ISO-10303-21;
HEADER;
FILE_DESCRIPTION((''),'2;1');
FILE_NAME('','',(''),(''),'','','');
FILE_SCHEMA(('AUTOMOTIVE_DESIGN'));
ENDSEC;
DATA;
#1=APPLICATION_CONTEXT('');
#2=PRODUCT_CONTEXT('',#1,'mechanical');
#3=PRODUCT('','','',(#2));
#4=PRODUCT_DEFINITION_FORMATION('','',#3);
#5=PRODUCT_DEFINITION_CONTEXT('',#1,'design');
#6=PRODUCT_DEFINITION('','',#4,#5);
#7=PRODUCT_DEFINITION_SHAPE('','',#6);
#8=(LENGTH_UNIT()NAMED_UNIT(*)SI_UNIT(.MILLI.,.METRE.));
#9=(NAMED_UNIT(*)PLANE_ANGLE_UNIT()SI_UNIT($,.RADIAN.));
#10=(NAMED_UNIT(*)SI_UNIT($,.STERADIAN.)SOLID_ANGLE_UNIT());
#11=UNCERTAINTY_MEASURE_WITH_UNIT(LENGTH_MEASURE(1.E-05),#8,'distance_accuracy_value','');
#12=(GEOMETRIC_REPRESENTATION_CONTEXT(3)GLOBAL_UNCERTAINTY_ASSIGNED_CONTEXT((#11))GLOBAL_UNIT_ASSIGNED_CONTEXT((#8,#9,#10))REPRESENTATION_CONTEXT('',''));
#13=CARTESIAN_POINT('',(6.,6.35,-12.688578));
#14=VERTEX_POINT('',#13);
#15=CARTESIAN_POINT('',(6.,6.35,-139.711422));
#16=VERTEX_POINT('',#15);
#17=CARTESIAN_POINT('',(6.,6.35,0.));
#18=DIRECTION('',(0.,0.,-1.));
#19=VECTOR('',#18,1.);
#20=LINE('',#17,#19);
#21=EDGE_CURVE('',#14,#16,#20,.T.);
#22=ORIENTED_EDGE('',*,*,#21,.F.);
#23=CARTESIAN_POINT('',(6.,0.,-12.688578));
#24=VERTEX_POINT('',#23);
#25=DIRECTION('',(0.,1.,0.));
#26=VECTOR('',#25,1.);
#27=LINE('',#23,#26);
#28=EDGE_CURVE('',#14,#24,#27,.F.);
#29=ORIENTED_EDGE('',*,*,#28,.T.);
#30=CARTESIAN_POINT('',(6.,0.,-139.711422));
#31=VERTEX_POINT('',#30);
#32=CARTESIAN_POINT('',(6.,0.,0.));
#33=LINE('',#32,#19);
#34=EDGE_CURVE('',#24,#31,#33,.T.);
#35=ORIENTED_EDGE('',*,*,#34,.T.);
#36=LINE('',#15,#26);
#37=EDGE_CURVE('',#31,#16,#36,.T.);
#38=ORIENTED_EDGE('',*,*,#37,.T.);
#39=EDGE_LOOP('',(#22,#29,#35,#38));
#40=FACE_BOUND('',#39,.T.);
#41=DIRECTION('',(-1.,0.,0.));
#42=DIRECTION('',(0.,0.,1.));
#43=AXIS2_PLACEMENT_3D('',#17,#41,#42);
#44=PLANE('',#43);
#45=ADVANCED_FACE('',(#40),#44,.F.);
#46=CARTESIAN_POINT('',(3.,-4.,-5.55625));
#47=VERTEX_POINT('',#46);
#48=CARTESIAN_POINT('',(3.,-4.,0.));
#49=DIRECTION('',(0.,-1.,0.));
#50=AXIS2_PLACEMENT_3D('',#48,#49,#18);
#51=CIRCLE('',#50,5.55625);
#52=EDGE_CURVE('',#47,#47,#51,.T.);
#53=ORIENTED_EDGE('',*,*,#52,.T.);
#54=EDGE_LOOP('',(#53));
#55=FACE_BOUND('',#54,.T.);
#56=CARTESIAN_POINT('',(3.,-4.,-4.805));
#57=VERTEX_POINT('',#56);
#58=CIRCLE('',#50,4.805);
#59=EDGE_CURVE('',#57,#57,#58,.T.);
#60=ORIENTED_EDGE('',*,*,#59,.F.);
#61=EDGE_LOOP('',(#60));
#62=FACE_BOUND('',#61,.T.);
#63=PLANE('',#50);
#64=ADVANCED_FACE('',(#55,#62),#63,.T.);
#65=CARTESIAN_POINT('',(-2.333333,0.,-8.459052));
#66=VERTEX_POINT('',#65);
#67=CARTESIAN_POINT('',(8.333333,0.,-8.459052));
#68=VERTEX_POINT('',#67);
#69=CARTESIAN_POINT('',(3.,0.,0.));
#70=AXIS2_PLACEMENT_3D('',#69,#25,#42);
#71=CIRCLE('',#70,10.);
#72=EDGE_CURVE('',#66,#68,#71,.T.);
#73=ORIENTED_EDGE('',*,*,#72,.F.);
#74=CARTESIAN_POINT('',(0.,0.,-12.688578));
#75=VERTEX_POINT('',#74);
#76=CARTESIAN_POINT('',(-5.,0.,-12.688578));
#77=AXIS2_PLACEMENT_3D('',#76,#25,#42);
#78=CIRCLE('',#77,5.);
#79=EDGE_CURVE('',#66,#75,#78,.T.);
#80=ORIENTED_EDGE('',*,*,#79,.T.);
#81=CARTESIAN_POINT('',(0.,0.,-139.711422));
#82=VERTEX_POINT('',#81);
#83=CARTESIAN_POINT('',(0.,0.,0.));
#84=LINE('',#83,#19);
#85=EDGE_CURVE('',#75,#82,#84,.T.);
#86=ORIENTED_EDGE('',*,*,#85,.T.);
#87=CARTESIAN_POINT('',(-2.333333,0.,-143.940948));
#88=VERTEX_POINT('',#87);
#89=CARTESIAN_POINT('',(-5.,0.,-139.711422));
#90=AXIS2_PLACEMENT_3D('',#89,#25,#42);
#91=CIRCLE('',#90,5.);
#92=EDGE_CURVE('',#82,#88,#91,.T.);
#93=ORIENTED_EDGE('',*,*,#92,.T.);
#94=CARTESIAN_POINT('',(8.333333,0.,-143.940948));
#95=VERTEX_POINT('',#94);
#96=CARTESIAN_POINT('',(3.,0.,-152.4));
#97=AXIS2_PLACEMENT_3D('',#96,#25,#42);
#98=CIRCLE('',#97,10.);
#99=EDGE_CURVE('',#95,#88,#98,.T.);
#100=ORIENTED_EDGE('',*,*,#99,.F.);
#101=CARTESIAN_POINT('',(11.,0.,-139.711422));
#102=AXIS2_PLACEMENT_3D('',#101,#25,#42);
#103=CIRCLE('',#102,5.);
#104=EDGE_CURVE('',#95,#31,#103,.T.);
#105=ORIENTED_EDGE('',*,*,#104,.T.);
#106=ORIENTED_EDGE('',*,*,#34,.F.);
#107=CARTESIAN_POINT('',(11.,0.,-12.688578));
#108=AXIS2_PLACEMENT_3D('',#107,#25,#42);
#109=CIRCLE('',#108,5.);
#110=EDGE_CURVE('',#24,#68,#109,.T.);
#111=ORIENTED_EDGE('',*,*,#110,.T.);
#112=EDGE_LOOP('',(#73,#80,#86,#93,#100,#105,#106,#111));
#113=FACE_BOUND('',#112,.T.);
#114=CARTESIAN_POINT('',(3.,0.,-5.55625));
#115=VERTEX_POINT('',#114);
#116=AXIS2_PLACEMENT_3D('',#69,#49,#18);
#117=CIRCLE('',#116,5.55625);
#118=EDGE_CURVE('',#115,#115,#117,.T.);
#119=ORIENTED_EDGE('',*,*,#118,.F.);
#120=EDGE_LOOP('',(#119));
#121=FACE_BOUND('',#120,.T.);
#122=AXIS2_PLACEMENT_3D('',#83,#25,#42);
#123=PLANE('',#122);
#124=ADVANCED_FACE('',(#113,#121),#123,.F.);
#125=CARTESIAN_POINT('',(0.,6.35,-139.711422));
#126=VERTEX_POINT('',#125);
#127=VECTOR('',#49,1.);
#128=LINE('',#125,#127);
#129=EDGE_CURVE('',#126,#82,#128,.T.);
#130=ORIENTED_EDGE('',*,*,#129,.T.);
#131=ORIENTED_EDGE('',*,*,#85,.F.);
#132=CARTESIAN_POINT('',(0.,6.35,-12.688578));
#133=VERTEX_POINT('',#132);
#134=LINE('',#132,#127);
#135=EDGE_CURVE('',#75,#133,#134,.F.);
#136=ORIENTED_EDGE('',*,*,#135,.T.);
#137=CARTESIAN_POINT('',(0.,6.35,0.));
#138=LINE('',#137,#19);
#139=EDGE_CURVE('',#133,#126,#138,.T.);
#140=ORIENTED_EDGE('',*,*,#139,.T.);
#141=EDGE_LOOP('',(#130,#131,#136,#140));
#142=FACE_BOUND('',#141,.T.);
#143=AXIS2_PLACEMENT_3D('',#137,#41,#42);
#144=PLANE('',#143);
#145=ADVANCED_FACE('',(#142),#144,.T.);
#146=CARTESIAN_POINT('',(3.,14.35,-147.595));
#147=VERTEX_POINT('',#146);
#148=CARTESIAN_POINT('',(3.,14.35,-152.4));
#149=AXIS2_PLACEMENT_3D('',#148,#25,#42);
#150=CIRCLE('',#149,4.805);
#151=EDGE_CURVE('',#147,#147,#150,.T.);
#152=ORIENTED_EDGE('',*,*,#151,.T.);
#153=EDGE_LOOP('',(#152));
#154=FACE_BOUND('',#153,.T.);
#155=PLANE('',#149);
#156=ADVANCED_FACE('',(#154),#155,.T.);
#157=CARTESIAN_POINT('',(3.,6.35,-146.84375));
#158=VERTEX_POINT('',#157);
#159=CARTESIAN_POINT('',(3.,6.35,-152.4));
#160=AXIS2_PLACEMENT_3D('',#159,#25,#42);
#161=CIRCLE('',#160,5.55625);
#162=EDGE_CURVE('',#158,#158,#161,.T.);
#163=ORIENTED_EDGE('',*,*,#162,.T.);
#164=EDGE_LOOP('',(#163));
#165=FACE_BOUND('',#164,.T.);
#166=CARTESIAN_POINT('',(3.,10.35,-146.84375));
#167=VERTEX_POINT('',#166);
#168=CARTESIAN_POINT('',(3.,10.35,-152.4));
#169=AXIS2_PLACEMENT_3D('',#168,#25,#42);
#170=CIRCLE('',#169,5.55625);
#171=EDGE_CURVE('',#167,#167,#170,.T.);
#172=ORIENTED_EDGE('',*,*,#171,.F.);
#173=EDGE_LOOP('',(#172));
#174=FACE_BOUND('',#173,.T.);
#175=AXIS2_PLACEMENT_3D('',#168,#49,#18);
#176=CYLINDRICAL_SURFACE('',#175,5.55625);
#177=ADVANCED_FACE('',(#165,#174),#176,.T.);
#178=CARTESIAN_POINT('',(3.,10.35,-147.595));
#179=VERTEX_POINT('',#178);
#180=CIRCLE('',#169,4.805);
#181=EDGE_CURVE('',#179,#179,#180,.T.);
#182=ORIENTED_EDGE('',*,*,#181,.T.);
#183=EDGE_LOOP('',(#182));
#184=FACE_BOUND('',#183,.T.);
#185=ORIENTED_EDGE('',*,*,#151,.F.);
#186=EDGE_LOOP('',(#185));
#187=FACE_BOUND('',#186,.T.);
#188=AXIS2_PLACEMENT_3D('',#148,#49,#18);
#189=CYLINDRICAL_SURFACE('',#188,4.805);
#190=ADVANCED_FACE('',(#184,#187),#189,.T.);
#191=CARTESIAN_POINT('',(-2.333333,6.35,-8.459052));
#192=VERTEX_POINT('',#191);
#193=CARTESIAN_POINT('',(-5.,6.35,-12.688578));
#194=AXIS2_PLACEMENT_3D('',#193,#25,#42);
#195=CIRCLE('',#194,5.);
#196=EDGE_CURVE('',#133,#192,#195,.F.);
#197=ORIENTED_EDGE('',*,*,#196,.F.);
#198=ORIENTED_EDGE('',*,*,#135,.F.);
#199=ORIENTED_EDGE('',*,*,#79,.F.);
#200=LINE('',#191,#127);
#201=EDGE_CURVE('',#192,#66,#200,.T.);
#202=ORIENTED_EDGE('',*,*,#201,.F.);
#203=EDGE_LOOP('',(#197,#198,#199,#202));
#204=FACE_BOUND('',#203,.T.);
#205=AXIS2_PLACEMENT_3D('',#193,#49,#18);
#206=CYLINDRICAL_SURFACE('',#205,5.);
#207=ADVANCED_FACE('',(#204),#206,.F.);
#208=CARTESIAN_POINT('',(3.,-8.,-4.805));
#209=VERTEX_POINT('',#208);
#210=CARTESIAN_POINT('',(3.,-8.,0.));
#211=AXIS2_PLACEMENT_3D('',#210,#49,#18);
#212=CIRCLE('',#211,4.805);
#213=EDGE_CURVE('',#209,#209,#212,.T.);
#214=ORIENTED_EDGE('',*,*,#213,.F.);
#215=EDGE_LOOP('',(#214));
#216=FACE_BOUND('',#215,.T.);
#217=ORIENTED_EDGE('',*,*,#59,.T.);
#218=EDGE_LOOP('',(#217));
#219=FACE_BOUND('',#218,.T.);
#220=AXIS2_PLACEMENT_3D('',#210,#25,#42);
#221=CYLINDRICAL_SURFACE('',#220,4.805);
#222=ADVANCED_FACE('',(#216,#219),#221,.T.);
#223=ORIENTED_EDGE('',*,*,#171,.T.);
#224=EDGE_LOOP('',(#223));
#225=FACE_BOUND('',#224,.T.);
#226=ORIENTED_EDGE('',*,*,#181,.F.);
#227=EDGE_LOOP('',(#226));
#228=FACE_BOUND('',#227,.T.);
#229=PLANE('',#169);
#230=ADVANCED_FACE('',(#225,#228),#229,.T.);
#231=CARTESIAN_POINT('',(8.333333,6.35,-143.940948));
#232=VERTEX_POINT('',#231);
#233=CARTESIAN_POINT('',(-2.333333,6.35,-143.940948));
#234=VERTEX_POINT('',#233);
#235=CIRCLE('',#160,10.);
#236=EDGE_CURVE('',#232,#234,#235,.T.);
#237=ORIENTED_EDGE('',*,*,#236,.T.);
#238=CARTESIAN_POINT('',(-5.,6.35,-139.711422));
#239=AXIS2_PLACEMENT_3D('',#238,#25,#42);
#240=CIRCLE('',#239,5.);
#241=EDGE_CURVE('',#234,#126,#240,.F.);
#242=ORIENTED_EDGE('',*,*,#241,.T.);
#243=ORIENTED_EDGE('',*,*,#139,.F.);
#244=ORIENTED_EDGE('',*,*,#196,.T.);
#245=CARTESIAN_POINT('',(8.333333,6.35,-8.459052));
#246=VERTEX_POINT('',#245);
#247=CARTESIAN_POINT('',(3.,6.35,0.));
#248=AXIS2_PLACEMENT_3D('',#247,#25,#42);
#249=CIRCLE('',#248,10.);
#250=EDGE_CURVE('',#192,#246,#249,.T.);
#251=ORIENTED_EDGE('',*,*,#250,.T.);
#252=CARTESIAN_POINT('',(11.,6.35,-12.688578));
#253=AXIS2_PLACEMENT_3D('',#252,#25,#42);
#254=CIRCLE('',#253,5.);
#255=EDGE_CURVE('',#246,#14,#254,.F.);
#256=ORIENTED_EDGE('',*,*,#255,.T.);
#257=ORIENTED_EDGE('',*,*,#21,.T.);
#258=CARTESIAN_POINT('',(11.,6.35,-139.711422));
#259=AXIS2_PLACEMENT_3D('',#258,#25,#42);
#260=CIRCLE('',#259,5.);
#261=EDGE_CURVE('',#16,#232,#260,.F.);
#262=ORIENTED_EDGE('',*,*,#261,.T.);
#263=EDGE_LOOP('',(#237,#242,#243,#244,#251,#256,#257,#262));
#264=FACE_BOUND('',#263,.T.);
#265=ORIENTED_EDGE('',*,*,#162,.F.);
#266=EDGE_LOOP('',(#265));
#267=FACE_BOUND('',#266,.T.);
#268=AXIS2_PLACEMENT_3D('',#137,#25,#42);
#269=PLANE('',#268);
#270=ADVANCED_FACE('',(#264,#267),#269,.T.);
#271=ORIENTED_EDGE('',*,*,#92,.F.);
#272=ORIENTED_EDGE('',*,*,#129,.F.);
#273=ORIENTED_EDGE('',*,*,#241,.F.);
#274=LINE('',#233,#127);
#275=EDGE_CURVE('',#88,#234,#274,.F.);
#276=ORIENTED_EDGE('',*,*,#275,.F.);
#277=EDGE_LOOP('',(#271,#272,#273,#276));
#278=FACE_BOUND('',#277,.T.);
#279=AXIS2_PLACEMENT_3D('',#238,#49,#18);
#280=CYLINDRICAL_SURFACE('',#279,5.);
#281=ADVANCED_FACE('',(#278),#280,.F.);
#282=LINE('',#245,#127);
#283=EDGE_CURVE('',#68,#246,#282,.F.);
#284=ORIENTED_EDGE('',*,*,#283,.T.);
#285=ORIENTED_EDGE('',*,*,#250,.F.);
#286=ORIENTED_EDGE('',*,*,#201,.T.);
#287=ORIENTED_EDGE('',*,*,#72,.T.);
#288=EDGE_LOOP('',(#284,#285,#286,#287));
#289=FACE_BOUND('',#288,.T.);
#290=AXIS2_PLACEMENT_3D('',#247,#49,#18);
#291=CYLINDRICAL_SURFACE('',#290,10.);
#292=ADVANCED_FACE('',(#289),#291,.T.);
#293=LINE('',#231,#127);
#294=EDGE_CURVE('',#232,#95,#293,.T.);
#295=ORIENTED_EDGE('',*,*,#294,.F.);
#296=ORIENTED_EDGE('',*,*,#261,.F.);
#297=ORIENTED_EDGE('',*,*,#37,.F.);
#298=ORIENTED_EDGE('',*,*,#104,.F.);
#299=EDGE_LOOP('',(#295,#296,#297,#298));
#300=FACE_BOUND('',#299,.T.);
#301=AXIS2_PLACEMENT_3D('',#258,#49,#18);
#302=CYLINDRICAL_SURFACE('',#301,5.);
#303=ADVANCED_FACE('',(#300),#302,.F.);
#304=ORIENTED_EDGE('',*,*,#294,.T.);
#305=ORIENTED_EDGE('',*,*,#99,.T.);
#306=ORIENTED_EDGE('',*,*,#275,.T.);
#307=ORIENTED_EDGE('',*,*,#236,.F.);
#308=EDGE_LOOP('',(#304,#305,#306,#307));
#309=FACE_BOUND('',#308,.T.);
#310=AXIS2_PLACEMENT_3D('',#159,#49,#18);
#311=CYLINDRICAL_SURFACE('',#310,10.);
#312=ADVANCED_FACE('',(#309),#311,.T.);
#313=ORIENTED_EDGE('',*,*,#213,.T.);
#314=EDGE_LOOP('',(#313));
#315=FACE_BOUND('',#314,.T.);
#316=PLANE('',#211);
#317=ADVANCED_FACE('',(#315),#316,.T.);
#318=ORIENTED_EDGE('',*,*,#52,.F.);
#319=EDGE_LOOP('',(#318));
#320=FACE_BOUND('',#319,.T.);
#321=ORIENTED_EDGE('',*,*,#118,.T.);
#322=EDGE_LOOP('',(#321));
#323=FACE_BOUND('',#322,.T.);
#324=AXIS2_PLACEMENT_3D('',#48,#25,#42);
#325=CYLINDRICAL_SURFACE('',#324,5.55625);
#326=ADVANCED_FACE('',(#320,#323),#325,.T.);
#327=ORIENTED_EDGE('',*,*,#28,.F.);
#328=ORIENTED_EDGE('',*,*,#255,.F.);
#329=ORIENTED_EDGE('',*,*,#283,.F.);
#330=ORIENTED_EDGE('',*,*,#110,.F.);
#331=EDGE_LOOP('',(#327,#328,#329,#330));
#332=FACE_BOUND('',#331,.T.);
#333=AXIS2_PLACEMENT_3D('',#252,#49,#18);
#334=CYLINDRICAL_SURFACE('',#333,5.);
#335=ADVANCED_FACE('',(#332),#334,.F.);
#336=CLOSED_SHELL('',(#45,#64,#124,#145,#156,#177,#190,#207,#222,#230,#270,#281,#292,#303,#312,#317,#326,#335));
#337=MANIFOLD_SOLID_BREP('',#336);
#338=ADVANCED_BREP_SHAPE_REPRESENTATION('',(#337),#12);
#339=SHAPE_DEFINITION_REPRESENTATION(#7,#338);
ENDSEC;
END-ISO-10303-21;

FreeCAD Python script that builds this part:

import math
import FreeCAD as App
import Part
import Sketcher

V = App.Vector


def edges_at(feature, points):
    """Names of the edges that pass closest to the given points."""
    edges = feature.Shape.Edges
    near = lambda p: min(range(len(edges)), key=lambda i: edges[i].distToShape(Part.Vertex(*p))[0])
    return sorted({f"Edge{near(p) + 1}" for p in points})

doc = App.newDocument("Part")
body = doc.addObject("PartDesign::Body", "Body")

# Sketch on XZ plane
sketch1 = doc.addObject("Sketcher::SketchObject", "Sketch")
body.addObject(sketch1)
sketch1.AttachmentSupport = (doc.XZ_Plane, [""])
sketch1.MapMode = "FlatFace"
sketch1.addGeometry(Part.LineSegment(V(6, -10, 0), V(6, -143, 0)), False)
sketch1.addGeometry(Part.ArcOfCircle(Part.Circle(V(3, -152, 0), V(0, 0, 1), 10), math.radians(0), math.radians(73)), False)
sketch1.addGeometry(Part.ArcOfCircle(Part.Circle(V(3, -152, 0), V(0, 0, 1), 10), math.radians(107), math.radians(360)), False)
sketch1.addGeometry(Part.LineSegment(V(0, -143, 0), V(0, -10, 0)), False)
sketch1.addGeometry(Part.ArcOfCircle(Part.Circle(V(3, 0, 0), V(0, 0, 1), 10), math.radians(0), math.radians(253)), False)
sketch1.addGeometry(Part.ArcOfCircle(Part.Circle(V(3, 0, 0), V(0, 0, 1), 10), math.radians(-73), math.radians(0)), False)
sketch1.addConstraint(Sketcher.Constraint("Coincident", 0, 2, 1, 2))
sketch1.addConstraint(Sketcher.Constraint("Tangent", 1, 1, 2, 2))
sketch1.addConstraint(Sketcher.Constraint("Coincident", 2, 1, 3, 1))
sketch1.addConstraint(Sketcher.Constraint("Coincident", 3, 2, 4, 2))
sketch1.addConstraint(Sketcher.Constraint("Tangent", 4, 1, 5, 2))
sketch1.addConstraint(Sketcher.Constraint("Coincident", 5, 1, 0, 1))
sketch1.addConstraint(Sketcher.Constraint("Vertical", 0))
sketch1.addConstraint(Sketcher.Constraint("Vertical", 3))
sketch1.addConstraint(Sketcher.Constraint("Equal", 1, 2))
sketch1.addConstraint(Sketcher.Constraint("Equal", 2, 4))
sketch1.addConstraint(Sketcher.Constraint("Equal", 4, 5))
sketch1.addConstraint(Sketcher.Constraint("PointOnObject", 4, 3, -1))
sketch1.addConstraint(Sketcher.Constraint("PointOnObject", 2, 1, -2))
sketch1.addConstraint(Sketcher.Constraint("PointOnObject", 4, 1, -1))
sketch1.addConstraint(Sketcher.Constraint("Horizontal", 2, 3, 1, 1))
sketch1.addConstraint(Sketcher.Constraint("Horizontal", 0, 2, 2, 1))
sketch1.addConstraint(Sketcher.Constraint("Horizontal", 3, 2, 5, 1))
sketch1.addConstraint(Sketcher.Constraint("Radius", 1, 10.0))
sketch1.addConstraint(Sketcher.Constraint("DistanceX", -1, 1, 1, 3, 3.0))
sketch1.addConstraint(Sketcher.Constraint("DistanceY", 1, 3, -1, 1, 152.4))
pad1 = doc.addObject("PartDesign::Pad", "Pad")
body.addObject(pad1)
pad1.Profile = sketch1
pad1.Length = 6.35
pad1.Reversed = True

# Sketch on XZ plane
sketch2 = doc.addObject("Sketcher::SketchObject", "Sketch001")
body.addObject(sketch2)
sketch2.AttachmentSupport = (doc.XZ_Plane, [""])
sketch2.MapMode = "FlatFace"
sketch2.AttachmentOffset = App.Placement(V(0, 0, -6.35), App.Rotation())
sketch2.addGeometry(Part.Circle(V(3, -152, 0), V(0, 0, 1), 6), False)
sketch2.addConstraint(Sketcher.Constraint("DistanceX", -1, 1, 0, 3, 3.0))
sketch2.addConstraint(Sketcher.Constraint("Diameter", 0, 11.1125))
sketch2.addConstraint(Sketcher.Constraint("DistanceY", 0, 3, -1, 1, 152.4))
pad2 = doc.addObject("PartDesign::Pad", "Pad001")
body.addObject(pad2)
pad2.Profile = sketch2
pad2.Length = 4
pad2.Reversed = True

# Sketch on XZ plane
sketch3 = doc.addObject("Sketcher::SketchObject", "Sketch002")
body.addObject(sketch3)
sketch3.AttachmentSupport = (doc.XZ_Plane, [""])
sketch3.MapMode = "FlatFace"
sketch3.AttachmentOffset = App.Placement(V(0, 0, -10.35), App.Rotation())
sketch3.addGeometry(Part.Circle(V(3, -152.4, 0), V(0, 0, 1), 4.8), False)
sketch3.addConstraint(Sketcher.Constraint("Diameter", 0, 9.61))
sketch3.addConstraint(Sketcher.Constraint("DistanceX", -1, 1, 0, 3, 3.0))
sketch3.addConstraint(Sketcher.Constraint("DistanceY", 0, 3, -1, 1, 152.4))
pad3 = doc.addObject("PartDesign::Pad", "Pad002")
body.addObject(pad3)
pad3.Profile = sketch3
pad3.Length = 4
pad3.Reversed = True

# Sketch on XZ plane
sketch4 = doc.addObject("Sketcher::SketchObject", "Sketch003")
body.addObject(sketch4)
sketch4.AttachmentSupport = (doc.XZ_Plane, [""])
sketch4.MapMode = "FlatFace"
sketch4.addGeometry(Part.Circle(V(3, 0, 0), V(0, 0, 1), 6), False)
sketch4.addConstraint(Sketcher.Constraint("PointOnObject", 0, 3, -1))
sketch4.addConstraint(Sketcher.Constraint("DistanceX", -1, 1, 0, 3, 3.0))
sketch4.addConstraint(Sketcher.Constraint("Diameter", 0, 11.1125))
pad4 = doc.addObject("PartDesign::Pad", "Pad003")
body.addObject(pad4)
pad4.Profile = sketch4
pad4.Length = 4

# Sketch on XZ plane
sketch5 = doc.addObject("Sketcher::SketchObject", "Sketch004")
body.addObject(sketch5)
sketch5.AttachmentSupport = (doc.XZ_Plane, [""])
sketch5.MapMode = "FlatFace"
sketch5.AttachmentOffset = App.Placement(V(0, 0, 4), App.Rotation())
sketch5.addGeometry(Part.Circle(V(3, 0, 0), V(0, 0, 1), 4.8), False)
sketch5.addConstraint(Sketcher.Constraint("PointOnObject", 0, 3, -1))
sketch5.addConstraint(Sketcher.Constraint("Diameter", 0, 9.61))
sketch5.addConstraint(Sketcher.Constraint("DistanceX", -1, 1, 0, 3, 3.0))
pad5 = doc.addObject("PartDesign::Pad", "Pad004")
body.addObject(pad5)
pad5.Profile = sketch5
pad5.Length = 4
doc.recompute()

fillet = doc.addObject("PartDesign::Fillet", "Fillet")
body.addObject(fillet)
fillet.Base = (pad5, edges_at(pad5, [
    (0, 3.175, -9.539),
    (0, 3.175, -142.861),
    (6, 3.175, -142.861),
    (6, 3.175, -9.539),
]))
fillet.Radius = 5

doc.recompute()
